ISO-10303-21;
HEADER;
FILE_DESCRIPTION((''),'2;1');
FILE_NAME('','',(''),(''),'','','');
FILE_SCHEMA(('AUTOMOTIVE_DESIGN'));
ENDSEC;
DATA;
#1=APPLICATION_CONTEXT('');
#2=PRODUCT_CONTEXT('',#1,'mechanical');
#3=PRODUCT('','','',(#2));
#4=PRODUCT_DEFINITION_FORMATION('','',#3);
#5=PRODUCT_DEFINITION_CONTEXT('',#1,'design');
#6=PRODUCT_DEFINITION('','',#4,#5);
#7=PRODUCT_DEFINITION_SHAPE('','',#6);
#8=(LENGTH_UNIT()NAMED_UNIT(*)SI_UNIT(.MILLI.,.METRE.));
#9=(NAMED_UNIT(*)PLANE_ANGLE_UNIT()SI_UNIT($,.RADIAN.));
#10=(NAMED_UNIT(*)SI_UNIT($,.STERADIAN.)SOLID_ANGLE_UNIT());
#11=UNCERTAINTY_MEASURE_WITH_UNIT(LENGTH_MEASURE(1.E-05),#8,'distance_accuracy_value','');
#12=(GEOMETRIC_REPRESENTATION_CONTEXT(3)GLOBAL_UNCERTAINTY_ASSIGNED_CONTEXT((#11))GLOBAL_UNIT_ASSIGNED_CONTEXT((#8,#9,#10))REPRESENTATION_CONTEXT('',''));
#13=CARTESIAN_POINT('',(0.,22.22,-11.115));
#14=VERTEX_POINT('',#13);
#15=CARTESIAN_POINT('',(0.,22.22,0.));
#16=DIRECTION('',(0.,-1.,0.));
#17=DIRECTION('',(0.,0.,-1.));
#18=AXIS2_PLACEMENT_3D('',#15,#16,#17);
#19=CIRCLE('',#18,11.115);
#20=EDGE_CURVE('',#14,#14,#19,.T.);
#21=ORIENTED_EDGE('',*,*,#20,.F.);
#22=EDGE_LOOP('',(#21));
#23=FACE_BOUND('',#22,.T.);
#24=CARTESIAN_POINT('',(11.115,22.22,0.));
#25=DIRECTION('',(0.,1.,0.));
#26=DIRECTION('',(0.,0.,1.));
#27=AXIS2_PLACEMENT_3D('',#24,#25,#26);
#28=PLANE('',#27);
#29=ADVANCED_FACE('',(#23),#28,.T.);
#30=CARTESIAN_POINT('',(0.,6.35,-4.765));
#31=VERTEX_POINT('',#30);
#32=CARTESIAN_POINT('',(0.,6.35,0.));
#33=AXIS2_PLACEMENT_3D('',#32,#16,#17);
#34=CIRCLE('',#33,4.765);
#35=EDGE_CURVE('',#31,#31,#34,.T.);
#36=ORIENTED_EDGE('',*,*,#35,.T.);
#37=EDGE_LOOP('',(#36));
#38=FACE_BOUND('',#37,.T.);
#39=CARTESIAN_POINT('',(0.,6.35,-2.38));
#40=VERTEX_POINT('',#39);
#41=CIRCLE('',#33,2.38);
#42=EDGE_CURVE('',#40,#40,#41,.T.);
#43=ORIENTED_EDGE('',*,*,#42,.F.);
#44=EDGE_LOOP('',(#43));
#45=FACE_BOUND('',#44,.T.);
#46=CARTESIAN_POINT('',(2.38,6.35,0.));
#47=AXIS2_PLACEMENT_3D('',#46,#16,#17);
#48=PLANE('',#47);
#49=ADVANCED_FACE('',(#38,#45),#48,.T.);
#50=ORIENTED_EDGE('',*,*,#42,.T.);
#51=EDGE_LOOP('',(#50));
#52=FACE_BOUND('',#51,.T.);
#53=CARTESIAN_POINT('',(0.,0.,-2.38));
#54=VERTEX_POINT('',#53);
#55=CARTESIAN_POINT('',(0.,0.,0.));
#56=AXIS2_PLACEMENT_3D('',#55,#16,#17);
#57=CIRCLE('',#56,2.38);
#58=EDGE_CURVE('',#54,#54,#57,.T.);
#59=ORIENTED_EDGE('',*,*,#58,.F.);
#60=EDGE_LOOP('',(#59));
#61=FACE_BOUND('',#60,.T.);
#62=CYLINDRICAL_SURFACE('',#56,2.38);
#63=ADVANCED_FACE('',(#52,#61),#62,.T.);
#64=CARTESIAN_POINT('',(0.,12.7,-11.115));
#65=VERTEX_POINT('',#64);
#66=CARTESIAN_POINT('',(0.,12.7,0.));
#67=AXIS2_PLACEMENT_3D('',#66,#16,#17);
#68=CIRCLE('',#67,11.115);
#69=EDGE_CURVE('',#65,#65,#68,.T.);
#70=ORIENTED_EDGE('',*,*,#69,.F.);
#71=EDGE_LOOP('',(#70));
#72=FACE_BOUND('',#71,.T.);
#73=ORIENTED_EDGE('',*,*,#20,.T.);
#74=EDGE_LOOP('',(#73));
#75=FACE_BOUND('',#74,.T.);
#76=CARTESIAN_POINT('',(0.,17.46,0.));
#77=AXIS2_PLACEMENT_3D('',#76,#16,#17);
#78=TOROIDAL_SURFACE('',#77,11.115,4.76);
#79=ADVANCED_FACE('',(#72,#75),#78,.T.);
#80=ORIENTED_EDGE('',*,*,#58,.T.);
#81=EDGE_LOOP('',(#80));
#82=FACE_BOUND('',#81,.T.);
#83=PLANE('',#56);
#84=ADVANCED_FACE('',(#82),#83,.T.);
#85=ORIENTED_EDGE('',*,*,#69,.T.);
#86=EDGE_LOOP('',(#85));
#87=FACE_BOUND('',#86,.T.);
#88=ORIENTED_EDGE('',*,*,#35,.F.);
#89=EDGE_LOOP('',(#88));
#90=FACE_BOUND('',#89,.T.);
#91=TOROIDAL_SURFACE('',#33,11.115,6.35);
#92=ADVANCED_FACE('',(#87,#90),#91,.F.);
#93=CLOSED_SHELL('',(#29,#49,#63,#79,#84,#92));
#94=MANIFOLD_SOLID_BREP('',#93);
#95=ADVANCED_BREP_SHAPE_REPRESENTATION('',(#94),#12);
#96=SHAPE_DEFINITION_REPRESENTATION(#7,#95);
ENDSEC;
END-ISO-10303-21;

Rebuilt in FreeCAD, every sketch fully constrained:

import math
import FreeCAD as App
import Part
import Sketcher
from FreeCAD import Vector
Q = App.Units.Quantity

doc = App.newDocument("Part")
body = doc.addObject("PartDesign::Body", "Body")

sketch1 = body.newObject("Sketcher::SketchObject", "Sketch")
sketch1.AttachmentSupport = (doc.getObject("XY_Plane"), [""])
sketch1.MapMode = "FlatFace"
sketch1.addGeometry([
    Part.LineSegment(Vector(0, 0, 0), Vector(2.38, 0, 0)),
    Part.LineSegment(Vector(2.38, 0, 0), Vector(2.38, 6.35, 0)),
    Part.LineSegment(Vector(2.38, 6.35, 0), Vector(4.765, 6.35, 0)),
    Part.ArcOfCircle(Part.Circle(Vector(11.115, 6.35, 0), Vector(0, 0, 1), 6.35), math.radians(90), math.radians(180)),
    Part.ArcOfCircle(Part.Circle(Vector(11.115, 17.46, 0), Vector(0, 0, 1), 4.76), math.radians(-90), math.radians(90)),
    Part.LineSegment(Vector(11.115, 22.22, 0), Vector(0, 22.22, 0)),
    Part.LineSegment(Vector(0, 22.22, 0), Vector(0, 0, 0)),
], False)
sketch1.addConstraint([
    Sketcher.Constraint("Coincident", 0, 2, 1, 1),
    Sketcher.Constraint("Coincident", 1, 2, 2, 1),
    Sketcher.Constraint("Coincident", 2, 2, 3, 2),
    Sketcher.Constraint("Tangent", 3, 1, 4, 1),
    Sketcher.Constraint("Tangent", 4, 2, 5, 1),
    Sketcher.Constraint("Coincident", 5, 2, 6, 1),
    Sketcher.Constraint("Coincident", 6, 2, 0, 1),
    Sketcher.Constraint("Horizontal", 0),
    Sketcher.Constraint("Vertical", 1),
    Sketcher.Constraint("Horizontal", 2),
    Sketcher.Constraint("Horizontal", 5),
    Sketcher.Constraint("Vertical", 6),
    Sketcher.Constraint("Coincident", 6, 2, -1, 1),
    Sketcher.Constraint("Horizontal", 3, 3, 1, 2),
    Sketcher.Constraint("Vertical", 3, 3, 4, 3),
    Sketcher.Constraint("Radius", 3, Q("0.25 in")),
    Sketcher.Constraint("DistanceY", 1, 1, 1, 2, Q("0.25 in")),
    Sketcher.Constraint("Radius", 4, 4.76),
    Sketcher.Constraint("DistanceX", 0, 1, 0, 2, 2.38),
    Sketcher.Constraint("DistanceX", 2, 1, 2, 2, 2.385),
])
revolution = body.newObject("PartDesign::Revolution", "Revolution")
revolution.Profile = sketch1
revolution.ReferenceAxis = (sketch1, ["V_Axis"])
revolution.Angle = 360

doc.recompute()
